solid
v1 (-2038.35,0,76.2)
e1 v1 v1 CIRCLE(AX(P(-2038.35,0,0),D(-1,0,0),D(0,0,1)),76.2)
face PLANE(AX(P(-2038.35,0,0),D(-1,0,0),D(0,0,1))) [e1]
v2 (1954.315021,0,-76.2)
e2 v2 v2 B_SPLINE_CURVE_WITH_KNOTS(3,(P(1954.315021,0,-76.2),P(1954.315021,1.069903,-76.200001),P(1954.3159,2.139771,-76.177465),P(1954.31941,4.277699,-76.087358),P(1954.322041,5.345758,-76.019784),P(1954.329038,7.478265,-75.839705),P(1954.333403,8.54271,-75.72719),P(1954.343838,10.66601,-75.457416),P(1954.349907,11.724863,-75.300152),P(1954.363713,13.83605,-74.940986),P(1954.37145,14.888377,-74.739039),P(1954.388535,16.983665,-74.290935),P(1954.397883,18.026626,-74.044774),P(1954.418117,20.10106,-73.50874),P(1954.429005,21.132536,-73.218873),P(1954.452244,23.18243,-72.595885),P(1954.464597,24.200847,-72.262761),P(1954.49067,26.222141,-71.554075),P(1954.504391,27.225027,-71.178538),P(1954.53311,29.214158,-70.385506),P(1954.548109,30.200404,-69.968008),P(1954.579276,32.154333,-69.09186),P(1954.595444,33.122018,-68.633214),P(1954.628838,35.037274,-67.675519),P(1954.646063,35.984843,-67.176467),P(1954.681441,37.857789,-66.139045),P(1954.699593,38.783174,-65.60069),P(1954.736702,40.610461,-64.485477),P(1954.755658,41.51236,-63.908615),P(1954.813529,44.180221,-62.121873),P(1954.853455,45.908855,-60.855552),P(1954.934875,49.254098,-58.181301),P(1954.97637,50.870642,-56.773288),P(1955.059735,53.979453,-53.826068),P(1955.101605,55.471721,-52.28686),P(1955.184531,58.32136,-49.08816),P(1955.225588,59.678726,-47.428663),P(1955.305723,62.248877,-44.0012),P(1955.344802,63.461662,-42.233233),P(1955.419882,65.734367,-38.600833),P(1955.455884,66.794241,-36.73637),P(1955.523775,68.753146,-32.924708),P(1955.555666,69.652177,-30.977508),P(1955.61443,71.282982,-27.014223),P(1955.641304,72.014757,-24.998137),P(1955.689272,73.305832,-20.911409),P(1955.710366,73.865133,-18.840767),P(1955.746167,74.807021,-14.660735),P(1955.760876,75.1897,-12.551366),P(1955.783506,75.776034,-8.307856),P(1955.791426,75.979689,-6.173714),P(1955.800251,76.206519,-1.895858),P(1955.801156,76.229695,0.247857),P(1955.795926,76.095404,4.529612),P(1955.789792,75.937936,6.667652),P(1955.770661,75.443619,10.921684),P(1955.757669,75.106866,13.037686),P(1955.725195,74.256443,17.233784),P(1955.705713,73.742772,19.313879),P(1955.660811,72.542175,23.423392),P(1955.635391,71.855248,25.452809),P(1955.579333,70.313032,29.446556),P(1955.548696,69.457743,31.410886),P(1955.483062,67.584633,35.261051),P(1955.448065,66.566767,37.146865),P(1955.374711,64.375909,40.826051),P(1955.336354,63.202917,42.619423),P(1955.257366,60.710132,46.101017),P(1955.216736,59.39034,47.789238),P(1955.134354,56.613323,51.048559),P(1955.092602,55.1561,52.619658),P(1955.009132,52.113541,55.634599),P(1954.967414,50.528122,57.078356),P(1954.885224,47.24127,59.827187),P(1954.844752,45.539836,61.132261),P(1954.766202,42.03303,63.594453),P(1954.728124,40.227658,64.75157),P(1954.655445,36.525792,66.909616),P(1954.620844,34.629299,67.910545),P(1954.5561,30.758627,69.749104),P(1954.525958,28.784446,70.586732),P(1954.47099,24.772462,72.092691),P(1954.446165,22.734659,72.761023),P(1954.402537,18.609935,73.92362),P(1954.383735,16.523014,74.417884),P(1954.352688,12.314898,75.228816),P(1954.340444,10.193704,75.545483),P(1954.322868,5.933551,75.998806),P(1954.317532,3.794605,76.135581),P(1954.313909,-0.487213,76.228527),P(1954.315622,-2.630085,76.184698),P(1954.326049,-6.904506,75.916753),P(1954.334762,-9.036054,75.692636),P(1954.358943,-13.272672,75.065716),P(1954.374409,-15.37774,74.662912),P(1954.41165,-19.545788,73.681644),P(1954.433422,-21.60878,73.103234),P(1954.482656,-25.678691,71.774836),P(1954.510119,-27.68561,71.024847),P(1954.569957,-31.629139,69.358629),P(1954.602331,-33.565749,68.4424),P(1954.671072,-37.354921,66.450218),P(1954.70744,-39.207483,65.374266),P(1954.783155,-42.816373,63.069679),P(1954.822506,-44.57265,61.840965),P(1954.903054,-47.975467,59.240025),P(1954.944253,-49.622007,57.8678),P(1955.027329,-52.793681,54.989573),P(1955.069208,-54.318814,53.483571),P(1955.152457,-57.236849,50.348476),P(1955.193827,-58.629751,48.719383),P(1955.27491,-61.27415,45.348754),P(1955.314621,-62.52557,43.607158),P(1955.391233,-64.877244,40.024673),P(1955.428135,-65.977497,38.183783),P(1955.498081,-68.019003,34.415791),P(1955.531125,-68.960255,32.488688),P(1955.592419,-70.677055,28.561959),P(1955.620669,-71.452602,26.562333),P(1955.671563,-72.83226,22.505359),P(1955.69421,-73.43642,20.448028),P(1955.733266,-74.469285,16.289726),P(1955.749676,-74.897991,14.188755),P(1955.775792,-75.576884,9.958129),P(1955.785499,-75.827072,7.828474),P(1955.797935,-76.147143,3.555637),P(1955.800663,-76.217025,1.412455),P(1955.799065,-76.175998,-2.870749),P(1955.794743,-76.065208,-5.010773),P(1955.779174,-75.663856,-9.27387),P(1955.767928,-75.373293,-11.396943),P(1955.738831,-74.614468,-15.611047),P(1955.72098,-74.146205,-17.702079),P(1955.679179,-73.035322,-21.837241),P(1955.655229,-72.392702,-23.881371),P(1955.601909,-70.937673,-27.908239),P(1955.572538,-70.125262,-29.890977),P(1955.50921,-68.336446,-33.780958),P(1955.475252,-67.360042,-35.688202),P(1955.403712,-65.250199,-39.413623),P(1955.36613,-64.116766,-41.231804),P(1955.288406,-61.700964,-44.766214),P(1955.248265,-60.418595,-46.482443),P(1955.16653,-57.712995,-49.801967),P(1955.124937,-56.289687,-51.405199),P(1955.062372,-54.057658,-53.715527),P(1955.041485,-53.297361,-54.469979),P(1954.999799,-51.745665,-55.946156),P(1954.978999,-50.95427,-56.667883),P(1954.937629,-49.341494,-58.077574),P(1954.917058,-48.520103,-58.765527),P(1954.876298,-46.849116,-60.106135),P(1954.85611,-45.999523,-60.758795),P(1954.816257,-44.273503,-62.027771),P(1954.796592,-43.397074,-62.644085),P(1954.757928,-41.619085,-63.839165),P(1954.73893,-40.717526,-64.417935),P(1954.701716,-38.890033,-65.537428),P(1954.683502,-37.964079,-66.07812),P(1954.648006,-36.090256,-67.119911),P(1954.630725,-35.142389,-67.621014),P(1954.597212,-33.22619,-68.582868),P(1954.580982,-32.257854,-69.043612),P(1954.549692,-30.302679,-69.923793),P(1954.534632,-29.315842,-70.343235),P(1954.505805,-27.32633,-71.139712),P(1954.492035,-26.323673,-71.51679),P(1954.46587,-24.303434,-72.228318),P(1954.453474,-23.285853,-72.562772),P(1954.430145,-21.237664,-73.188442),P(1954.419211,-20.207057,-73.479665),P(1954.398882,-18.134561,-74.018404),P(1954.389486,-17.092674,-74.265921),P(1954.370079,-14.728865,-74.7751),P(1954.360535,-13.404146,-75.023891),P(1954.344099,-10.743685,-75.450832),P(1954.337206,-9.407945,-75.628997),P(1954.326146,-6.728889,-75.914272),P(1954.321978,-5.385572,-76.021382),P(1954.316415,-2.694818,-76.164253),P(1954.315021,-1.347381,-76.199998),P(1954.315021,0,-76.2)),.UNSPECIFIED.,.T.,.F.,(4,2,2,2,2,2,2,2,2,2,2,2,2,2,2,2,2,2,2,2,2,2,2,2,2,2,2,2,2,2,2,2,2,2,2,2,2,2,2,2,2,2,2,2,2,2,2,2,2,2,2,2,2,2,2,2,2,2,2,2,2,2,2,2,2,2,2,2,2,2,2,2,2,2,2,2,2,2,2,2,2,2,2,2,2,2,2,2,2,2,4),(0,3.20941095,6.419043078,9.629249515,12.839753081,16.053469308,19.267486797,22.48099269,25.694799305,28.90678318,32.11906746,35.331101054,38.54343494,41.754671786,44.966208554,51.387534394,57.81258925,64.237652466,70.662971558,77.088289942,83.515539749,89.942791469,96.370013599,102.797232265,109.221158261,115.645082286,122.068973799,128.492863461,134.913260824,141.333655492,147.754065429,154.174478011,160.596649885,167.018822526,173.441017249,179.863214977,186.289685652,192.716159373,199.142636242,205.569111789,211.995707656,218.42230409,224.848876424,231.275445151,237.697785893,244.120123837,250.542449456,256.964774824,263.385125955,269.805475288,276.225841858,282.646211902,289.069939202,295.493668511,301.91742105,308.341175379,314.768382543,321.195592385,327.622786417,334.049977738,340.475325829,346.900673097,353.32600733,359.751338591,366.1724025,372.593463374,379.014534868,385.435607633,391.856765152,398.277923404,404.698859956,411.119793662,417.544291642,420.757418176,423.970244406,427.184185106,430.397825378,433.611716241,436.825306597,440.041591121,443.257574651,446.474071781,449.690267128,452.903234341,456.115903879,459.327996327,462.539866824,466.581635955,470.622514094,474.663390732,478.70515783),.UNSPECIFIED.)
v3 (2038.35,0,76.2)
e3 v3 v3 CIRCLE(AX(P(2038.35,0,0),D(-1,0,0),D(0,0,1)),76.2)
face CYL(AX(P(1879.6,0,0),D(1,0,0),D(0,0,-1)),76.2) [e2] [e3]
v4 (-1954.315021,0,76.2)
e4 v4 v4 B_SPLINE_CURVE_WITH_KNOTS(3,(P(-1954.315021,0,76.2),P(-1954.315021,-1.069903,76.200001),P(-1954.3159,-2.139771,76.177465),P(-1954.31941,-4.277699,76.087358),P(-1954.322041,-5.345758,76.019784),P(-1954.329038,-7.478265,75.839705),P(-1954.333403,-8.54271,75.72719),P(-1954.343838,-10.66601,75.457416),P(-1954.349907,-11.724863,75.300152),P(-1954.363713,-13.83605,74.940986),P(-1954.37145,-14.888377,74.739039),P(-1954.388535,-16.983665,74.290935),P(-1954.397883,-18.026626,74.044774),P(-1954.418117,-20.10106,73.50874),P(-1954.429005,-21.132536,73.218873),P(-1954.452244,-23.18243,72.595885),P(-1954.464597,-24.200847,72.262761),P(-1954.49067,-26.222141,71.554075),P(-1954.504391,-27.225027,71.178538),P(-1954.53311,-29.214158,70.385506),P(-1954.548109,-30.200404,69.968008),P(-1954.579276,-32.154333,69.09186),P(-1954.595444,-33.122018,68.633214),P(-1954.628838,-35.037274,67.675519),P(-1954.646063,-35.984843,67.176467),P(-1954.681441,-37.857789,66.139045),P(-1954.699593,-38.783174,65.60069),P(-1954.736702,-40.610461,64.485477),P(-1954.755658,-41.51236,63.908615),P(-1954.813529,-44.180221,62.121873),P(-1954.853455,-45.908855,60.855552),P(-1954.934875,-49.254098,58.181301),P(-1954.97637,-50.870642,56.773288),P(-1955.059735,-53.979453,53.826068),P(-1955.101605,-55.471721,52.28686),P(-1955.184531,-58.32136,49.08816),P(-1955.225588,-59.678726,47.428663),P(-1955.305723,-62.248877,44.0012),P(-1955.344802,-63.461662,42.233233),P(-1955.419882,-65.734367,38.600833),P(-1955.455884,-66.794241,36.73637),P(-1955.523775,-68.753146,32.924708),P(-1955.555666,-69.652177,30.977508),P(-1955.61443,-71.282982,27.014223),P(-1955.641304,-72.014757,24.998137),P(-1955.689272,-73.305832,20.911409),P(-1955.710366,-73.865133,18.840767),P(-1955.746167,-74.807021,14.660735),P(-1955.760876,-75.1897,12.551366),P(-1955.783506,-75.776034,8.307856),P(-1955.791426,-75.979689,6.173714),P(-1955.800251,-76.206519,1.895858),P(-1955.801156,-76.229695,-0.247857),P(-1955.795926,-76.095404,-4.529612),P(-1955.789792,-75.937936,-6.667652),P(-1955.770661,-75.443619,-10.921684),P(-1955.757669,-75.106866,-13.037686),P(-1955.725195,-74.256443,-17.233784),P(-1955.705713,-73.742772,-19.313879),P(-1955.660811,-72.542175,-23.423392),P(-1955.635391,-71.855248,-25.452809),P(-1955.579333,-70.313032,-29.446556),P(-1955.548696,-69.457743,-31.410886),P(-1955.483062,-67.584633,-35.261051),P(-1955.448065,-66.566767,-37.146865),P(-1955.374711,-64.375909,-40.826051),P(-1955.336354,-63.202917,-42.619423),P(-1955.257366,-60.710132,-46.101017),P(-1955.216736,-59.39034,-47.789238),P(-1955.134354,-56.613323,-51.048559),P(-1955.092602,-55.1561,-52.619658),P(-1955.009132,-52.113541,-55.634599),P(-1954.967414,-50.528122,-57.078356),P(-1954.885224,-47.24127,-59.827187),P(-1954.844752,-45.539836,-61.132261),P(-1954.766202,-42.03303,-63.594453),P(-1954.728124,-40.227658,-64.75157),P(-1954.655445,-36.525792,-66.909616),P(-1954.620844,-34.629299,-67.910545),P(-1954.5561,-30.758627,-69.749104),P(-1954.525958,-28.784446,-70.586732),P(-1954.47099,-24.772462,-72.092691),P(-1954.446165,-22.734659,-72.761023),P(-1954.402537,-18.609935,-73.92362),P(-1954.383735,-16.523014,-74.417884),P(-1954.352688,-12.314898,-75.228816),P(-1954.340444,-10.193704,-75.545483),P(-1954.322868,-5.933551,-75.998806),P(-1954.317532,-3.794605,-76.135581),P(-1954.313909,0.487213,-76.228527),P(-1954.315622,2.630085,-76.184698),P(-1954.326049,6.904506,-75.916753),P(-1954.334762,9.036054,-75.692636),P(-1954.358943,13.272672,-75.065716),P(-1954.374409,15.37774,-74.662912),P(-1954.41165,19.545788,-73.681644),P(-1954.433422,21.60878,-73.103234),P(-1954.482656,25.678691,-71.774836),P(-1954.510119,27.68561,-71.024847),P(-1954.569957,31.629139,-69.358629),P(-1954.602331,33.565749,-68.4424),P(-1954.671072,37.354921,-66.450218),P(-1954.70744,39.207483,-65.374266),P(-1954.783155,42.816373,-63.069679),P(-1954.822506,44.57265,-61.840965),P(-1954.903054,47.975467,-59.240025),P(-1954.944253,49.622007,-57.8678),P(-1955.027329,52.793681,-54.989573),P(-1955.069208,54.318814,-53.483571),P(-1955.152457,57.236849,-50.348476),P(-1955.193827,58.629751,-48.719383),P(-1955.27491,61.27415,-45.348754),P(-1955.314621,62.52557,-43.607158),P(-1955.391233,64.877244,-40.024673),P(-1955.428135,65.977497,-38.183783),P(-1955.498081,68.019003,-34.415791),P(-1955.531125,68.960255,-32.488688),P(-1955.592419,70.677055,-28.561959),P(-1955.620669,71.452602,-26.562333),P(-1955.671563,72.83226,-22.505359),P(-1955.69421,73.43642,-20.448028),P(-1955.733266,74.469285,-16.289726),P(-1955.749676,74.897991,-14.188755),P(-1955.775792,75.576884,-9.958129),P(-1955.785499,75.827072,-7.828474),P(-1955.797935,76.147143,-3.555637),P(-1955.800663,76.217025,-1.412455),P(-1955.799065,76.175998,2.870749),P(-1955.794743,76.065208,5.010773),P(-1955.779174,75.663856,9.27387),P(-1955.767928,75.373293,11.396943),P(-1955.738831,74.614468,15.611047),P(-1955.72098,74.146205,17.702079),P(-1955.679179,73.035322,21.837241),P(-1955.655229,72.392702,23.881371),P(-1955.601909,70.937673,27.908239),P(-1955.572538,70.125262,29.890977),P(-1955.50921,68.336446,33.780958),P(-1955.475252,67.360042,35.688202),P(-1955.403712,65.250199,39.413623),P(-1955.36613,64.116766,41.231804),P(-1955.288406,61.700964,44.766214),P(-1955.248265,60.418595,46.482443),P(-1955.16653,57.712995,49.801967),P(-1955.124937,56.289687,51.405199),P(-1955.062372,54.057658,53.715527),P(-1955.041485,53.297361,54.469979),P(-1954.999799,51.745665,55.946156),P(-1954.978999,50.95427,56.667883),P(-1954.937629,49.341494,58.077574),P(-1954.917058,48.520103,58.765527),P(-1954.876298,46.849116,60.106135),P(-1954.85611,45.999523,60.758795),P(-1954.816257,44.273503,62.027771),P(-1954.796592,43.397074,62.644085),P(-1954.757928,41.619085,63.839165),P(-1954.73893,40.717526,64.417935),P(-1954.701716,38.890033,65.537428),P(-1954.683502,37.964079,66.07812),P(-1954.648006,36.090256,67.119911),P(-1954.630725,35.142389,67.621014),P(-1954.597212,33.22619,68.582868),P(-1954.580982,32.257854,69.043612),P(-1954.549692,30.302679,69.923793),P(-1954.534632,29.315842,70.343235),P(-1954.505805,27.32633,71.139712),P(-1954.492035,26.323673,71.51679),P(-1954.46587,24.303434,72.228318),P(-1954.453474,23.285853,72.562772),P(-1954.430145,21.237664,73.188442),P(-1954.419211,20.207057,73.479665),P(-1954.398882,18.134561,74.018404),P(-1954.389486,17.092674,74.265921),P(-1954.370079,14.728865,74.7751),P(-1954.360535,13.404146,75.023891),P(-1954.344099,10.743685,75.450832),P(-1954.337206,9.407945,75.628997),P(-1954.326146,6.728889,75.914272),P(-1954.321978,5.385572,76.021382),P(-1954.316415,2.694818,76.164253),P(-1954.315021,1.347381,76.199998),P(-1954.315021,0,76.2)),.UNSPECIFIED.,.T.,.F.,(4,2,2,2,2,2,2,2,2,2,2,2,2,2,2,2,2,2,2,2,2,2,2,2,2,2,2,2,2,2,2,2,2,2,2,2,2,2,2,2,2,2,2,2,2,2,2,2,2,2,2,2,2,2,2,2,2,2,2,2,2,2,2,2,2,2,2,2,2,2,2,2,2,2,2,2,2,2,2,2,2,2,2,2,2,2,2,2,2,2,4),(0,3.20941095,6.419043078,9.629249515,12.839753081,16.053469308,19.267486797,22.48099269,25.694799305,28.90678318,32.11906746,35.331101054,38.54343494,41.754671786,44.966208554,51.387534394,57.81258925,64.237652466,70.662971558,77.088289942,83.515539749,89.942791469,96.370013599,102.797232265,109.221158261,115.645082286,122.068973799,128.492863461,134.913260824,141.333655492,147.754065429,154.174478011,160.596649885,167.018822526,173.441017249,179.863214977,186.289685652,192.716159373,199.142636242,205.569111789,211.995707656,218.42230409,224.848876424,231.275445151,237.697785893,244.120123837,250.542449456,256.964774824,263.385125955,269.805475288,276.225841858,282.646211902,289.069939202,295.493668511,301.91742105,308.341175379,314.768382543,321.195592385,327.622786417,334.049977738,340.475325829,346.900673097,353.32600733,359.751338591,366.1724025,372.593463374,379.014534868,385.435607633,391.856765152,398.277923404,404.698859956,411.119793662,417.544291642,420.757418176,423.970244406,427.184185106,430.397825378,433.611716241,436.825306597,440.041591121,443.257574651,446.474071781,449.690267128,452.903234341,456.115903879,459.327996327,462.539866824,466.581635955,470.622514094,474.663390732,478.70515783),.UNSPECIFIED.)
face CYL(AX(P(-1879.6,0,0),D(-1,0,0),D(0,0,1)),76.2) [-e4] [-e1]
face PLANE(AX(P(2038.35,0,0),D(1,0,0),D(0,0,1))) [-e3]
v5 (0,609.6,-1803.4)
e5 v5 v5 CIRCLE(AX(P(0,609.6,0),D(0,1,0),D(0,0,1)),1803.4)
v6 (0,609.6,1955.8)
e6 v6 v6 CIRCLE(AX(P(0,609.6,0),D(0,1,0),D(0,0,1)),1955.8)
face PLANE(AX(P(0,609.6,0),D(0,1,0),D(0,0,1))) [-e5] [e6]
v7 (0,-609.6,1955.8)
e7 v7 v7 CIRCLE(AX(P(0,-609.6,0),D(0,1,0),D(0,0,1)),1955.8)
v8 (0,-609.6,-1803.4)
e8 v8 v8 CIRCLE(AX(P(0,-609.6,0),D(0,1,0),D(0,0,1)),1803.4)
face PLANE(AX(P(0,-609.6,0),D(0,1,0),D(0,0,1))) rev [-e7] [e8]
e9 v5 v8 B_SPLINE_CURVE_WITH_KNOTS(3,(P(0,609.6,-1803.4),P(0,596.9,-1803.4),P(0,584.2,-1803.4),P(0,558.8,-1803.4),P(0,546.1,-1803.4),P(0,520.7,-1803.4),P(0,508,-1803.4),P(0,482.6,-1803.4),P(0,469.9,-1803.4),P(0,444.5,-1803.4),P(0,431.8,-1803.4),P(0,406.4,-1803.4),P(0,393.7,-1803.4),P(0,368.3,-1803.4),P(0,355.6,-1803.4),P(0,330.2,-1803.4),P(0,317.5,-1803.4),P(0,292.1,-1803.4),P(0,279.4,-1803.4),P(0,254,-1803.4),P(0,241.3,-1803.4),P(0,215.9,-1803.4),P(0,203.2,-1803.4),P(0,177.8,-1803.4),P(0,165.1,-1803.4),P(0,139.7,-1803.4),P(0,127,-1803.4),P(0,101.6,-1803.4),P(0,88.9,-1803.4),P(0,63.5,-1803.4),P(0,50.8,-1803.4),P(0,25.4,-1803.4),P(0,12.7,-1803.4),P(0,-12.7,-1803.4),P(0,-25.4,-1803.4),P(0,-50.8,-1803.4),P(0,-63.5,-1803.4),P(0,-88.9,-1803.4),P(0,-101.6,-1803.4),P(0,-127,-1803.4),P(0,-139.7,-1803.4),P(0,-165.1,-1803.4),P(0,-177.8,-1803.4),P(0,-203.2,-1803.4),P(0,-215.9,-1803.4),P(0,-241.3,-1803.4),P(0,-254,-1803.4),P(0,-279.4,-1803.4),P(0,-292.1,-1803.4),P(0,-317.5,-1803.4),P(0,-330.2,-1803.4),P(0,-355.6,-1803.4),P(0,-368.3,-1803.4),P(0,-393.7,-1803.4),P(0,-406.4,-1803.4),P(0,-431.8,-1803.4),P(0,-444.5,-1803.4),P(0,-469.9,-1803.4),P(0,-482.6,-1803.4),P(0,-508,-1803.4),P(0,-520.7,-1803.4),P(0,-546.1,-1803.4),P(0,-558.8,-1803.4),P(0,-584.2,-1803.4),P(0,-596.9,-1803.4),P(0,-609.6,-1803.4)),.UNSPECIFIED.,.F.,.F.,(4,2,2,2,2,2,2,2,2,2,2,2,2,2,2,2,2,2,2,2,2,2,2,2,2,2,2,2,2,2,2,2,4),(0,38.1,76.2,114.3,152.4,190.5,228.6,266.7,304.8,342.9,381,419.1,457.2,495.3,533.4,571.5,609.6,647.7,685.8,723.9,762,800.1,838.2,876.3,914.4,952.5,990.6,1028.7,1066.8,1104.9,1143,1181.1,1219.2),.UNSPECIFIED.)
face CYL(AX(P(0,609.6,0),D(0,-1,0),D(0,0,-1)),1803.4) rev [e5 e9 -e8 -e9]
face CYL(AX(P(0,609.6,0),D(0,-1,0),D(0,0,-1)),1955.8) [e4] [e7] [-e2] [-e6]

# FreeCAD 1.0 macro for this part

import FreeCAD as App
import Part
import Sketcher
from FreeCAD import Vector
Q = App.Units.Quantity

doc = App.newDocument("Part")
body = doc.addObject("PartDesign::Body", "Body")

# Sketch on XZ plane
sketch1 = doc.addObject("Sketcher::SketchObject", "Sketch")
body.addObject(sketch1)
sketch1.AttachmentSupport = (doc.XZ_Plane, [""])
sketch1.MapMode = "FlatFace"
sketch1.addGeometry([
    Part.Circle(Vector(0, 0, 0), Vector(0, 0, 1), 1956),
    Part.Circle(Vector(0, 0, 0), Vector(0, 0, 1), 1803),
], False)
sketch1.addConstraint([
    Sketcher.Constraint("Coincident", 0, 3, -1, 1),
    Sketcher.Constraint("Coincident", 1, 3, -1, 1),
    Sketcher.Constraint("Diameter", 0, Q("154 in")),
    Sketcher.Constraint("Diameter", 1, Q("142 in")),
])
pad1 = doc.addObject("PartDesign::Pad", "Pad")
body.addObject(pad1)
pad1.Profile = sketch1
pad1.Length = Q("48 in")
pad1.Midplane = True

# Sketch on YZ plane
sketch2 = doc.addObject("Sketcher::SketchObject", "Sketch001")
body.addObject(sketch2)
sketch2.AttachmentSupport = (doc.YZ_Plane, [""])
sketch2.MapMode = "FlatFace"
sketch2.AttachmentOffset = App.Placement(Vector(0, 0, -74 * 25.4), App.Rotation())
sketch2.addGeometry(Part.Circle(Vector(0, 0, 0), Vector(0, 0, 1), 76), False)
sketch2.addConstraint([
    Sketcher.Constraint("Coincident", 0, 3, -1, 1),
    Sketcher.Constraint("Diameter", 0, Q("6 in")),
])
pad2 = doc.addObject("PartDesign::Pad", "Pad001")
body.addObject(pad2)
pad2.Profile = sketch2
pad2.Length = Q("6.25 in")
pad2.Reversed = True
doc.recompute()

mirrored = doc.addObject("PartDesign::Mirrored", "Mirrored")
body.addObject(mirrored)
mirrored.Originals = [pad2]
mirrored.MirrorPlane = (doc.YZ_Plane, [""])
body.Tip = mirrored

doc.recompute()
